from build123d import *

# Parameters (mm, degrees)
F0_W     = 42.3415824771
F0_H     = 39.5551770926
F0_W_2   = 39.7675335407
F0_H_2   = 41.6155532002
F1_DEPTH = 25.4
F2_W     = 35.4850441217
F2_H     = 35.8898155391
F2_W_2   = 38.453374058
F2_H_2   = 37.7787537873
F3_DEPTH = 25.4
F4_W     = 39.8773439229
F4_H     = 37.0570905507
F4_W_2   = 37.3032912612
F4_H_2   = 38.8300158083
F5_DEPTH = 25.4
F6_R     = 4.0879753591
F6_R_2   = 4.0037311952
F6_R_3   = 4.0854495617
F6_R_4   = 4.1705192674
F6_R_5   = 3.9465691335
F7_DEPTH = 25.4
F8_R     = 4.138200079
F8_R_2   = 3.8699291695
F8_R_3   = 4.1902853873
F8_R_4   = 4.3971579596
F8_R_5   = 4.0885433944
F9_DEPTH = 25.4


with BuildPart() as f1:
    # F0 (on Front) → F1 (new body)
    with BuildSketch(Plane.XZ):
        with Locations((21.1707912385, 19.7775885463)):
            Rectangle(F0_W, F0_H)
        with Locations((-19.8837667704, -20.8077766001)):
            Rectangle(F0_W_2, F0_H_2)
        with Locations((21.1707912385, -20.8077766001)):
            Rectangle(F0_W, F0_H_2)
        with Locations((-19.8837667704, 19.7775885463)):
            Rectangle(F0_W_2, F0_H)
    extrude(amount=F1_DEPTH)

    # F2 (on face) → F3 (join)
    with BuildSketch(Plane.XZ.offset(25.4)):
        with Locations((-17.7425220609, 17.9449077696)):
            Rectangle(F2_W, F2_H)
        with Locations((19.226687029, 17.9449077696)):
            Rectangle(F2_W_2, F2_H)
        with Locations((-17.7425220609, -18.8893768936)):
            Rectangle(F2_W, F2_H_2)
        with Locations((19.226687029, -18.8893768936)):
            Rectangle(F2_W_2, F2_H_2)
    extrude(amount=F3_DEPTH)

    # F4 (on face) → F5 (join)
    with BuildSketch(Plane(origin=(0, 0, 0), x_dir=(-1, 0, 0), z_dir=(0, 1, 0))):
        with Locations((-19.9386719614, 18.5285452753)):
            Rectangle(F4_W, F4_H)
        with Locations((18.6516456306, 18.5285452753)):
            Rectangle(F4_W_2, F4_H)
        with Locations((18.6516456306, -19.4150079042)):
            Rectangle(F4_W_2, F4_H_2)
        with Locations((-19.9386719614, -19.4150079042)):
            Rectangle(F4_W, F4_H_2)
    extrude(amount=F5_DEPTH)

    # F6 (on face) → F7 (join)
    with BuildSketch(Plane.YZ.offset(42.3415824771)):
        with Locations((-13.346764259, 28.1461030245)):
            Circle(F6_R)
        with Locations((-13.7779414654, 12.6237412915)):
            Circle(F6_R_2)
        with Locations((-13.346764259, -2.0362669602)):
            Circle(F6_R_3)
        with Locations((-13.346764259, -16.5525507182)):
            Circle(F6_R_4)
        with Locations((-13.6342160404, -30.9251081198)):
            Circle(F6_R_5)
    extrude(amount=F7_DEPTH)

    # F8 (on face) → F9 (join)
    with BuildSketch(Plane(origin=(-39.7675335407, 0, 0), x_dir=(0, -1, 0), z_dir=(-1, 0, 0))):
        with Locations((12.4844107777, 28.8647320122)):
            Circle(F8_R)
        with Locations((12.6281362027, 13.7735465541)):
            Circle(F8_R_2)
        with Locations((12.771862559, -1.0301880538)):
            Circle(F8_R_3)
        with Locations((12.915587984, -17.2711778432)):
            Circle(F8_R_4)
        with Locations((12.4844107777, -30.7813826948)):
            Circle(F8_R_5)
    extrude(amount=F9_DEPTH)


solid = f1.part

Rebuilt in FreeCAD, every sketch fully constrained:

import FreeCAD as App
import Part
import Sketcher
Q = App.Units.Quantity

doc = App.newDocument("Part")
body = doc.addObject("PartDesign::Body", "Body")

sketch1 = body.newObject("Sketcher::SketchObject", "Sketch")
sketch1.AttachmentSupport = (doc.getObject("XZ_Plane"), [""])
sketch1.MapMode = "FlatFace"
sketch1.addGeometry([
    Part.LineSegment(App.Vector(-40, -42, 0), App.Vector(42, -42, 0)),
    Part.LineSegment(App.Vector(42, -42, 0), App.Vector(42, 40, 0)),
    Part.LineSegment(App.Vector(42, 40, 0), App.Vector(-40, 40, 0)),
    Part.LineSegment(App.Vector(-40, 40, 0), App.Vector(-40, -42, 0)),
], False)
sketch1.addConstraint([
    Sketcher.Constraint("Coincident", 0, 2, 1, 1),
    Sketcher.Constraint("Coincident", 1, 2, 2, 1),
    Sketcher.Constraint("Coincident", 2, 2, 3, 1),
    Sketcher.Constraint("Coincident", 3, 2, 0, 1),
    Sketcher.Constraint("Horizontal", 0),
    Sketcher.Constraint("Vertical", 1),
    Sketcher.Constraint("Horizontal", 2),
    Sketcher.Constraint("Vertical", 3),
    Sketcher.Constraint("DistanceY", 1, 1, 1, 2, 81.17073),
    Sketcher.Constraint("DistanceX", 0, 1, 0, 2, 82.109116),
    Sketcher.Constraint("DistanceX", -1, 1, 0, 2, 42.341582),
    Sketcher.Constraint("DistanceY", 0, 2, -1, 1, 41.615553),
])
pad1 = body.newObject("PartDesign::Pad", "Pad")
pad1.Profile = sketch1
pad1.Length = Q("1 in")

sketch2 = body.newObject("Sketcher::SketchObject", "Sketch001")
sketch2.AttachmentSupport = (doc.getObject("XZ_Plane"), [""])
sketch2.MapMode = "FlatFace"
sketch2.AttachmentOffset = App.Placement(App.Vector(0, 0, 1 * 25.4), App.Rotation())
sketch2.addGeometry([
    Part.LineSegment(App.Vector(-35, 36, 0), App.Vector(-35, -38, 0)),
    Part.LineSegment(App.Vector(-35, -38, 0), App.Vector(38, -38, 0)),
    Part.LineSegment(App.Vector(38, -38, 0), App.Vector(38, 36, 0)),
    Part.LineSegment(App.Vector(38, 36, 0), App.Vector(-35, 36, 0)),
], False)
sketch2.addConstraint([
    Sketcher.Constraint("Coincident", 0, 2, 1, 1),
    Sketcher.Constraint("Coincident", 1, 2, 2, 1),
    Sketcher.Constraint("Coincident", 2, 2, 3, 1),
    Sketcher.Constraint("Coincident", 3, 2, 0, 1),
    Sketcher.Constraint("Vertical", 0),
    Sketcher.Constraint("Horizontal", 1),
    Sketcher.Constraint("Vertical", 2),
    Sketcher.Constraint("Horizontal", 3),
    Sketcher.Constraint("DistanceX", 1, 1, 1, 2, 73.938418),
    Sketcher.Constraint("DistanceY", 0, 2, 0, 1, 73.668569),
    Sketcher.Constraint("DistanceX", 0, 2, -1, 1, 35.485044),
    Sketcher.Constraint("DistanceY", 0, 2, -1, 1, 37.778754),
])
pad2 = body.newObject("PartDesign::Pad", "Pad001")
pad2.Profile = sketch2
pad2.Length = Q("1 in")

sketch3 = body.newObject("Sketcher::SketchObject", "Sketch002")
sketch3.AttachmentSupport = (doc.getObject("XZ_Plane"), [""])
sketch3.MapMode = "FlatFace"
sketch3.addGeometry([
    Part.LineSegment(App.Vector(40, 37, 0), App.Vector(40, -39, 0)),
    Part.LineSegment(App.Vector(40, -39, 0), App.Vector(-37, -39, 0)),
    Part.LineSegment(App.Vector(-37, -39, 0), App.Vector(-37, 37, 0)),
    Part.LineSegment(App.Vector(-37, 37, 0), App.Vector(40, 37, 0)),
], False)
sketch3.addConstraint([
    Sketcher.Constraint("Coincident", 0, 2, 1, 1),
    Sketcher.Constraint("Coincident", 1, 2, 2, 1),
    Sketcher.Constraint("Coincident", 2, 2, 3, 1),
    Sketcher.Constraint("Coincident", 3, 2, 0, 1),
    Sketcher.Constraint("Vertical", 0),
    Sketcher.Constraint("Horizontal", 1),
    Sketcher.Constraint("Vertical", 2),
    Sketcher.Constraint("Horizontal", 3),
    Sketcher.Constraint("DistanceX", 1, 2, 1, 1, 77.180635),
    Sketcher.Constraint("DistanceY", 0, 2, 0, 1, 75.887106),
    Sketcher.Constraint("DistanceX", 1, 2, -1, 1, 37.303291),
    Sketcher.Constraint("DistanceY", -1, 1, 2, 2, 37.057091),
])
pad3 = body.newObject("PartDesign::Pad", "Pad002")
pad3.Profile = sketch3
pad3.Length = Q("1 in")
pad3.Reversed = True

sketch4 = body.newObject("Sketcher::SketchObject", "Sketch003")
sketch4.AttachmentSupport = (doc.getObject("YZ_Plane"), [""])
sketch4.MapMode = "FlatFace"
sketch4.AttachmentOffset = App.Placement(App.Vector(0, 0, 42.341582), App.Rotation())
sketch4.addGeometry([
    Part.Circle(App.Vector(-13.3, 28.1, 0), App.Vector(0, 0, 1), 4.1),
    Part.Circle(App.Vector(-13.8, 12.6, 0), App.Vector(0, 0, 1), 4),
    Part.Circle(App.Vector(-13.3, -2, 0), App.Vector(0, 0, 1), 4.1),
    Part.Circle(App.Vector(-13.3, -16.6, 0), App.Vector(0, 0, 1), 4.2),
    Part.Circle(App.Vector(-13.6, -30.9, 0), App.Vector(0, 0, 1), 3.9),
], False)
sketch4.addConstraint([
    Sketcher.Constraint("Vertical", 0, 3, 2, 3),
    Sketcher.Constraint("Vertical", 2, 3, 3, 3),
    Sketcher.Constraint("Diameter", 2, 8.170899),
    Sketcher.Constraint("Diameter", 0, 8.175951),
    Sketcher.Constraint("Diameter", 3, 8.341039),
    Sketcher.Constraint("Diameter", 4, 7.893138),
    Sketcher.Constraint("Diameter", 1, 8.007462),
    Sketcher.Constraint("DistanceX", 1, 3, -1, 1, 13.777941),
    Sketcher.Constraint("DistanceY", -1, 1, 1, 3, 12.623741),
    Sketcher.Constraint("DistanceY", 3, 3, -1, 1, 16.552551),
    Sketcher.Constraint("DistanceY", 4, 3, -1, 1, 30.925108),
    Sketcher.Constraint("DistanceY", 1, 3, 0, 3, 15.522362),
    Sketcher.Constraint("DistanceY", 2, 3, 1, 3, 14.660008),
    Sketcher.Constraint("DistanceX", 4, 3, 3, 3, 0.287452),
    Sketcher.Constraint("DistanceX", 0, 3, -1, 1, 13.346764),
])
pad4 = body.newObject("PartDesign::Pad", "Pad003")
pad4.Profile = sketch4
pad4.Length = Q("1 in")

sketch5 = body.newObject("Sketcher::SketchObject", "Sketch004")
sketch5.AttachmentSupport = (doc.getObject("YZ_Plane"), [""])
sketch5.MapMode = "FlatFace"
sketch5.AttachmentOffset = App.Placement(App.Vector(0, 0, -39.767534), App.Rotation())
sketch5.addGeometry([
    Part.Circle(App.Vector(-12.5, 28.9, 0), App.Vector(0, 0, 1), 4.1),
    Part.Circle(App.Vector(-12.6, 13.8, 0), App.Vector(0, 0, 1), 3.9),
    Part.Circle(App.Vector(-12.8, -1, 0), App.Vector(0, 0, 1), 4.2),
    Part.Circle(App.Vector(-12.9, -17.3, 0), App.Vector(0, 0, 1), 4.4),
    Part.Circle(App.Vector(-12.5, -30.8, 0), App.Vector(0, 0, 1), 4.1),
], False)
sketch5.addConstraint([
    Sketcher.Constraint("Vertical", 0, 3, 4, 3),
    Sketcher.Constraint("Diameter", 0, 8.2764),
    Sketcher.Constraint("Diameter", 1, 7.739858),
    Sketcher.Constraint("Diameter", 2, 8.380571),
    Sketcher.Constraint("Diameter", 3, 8.794316),
    Sketcher.Constraint("Diameter", 4, 8.177087),
    Sketcher.Constraint("DistanceX", 0, 3, -1, 1, 12.484411),
    Sketcher.Constraint("DistanceY", 2, 3, -1, 1, 1.030188),
    Sketcher.Constraint("DistanceX", 2, 3, 0, 3, 0.287452),
    Sketcher.Constraint("DistanceY", 2, 3, 0, 3, 29.89492),
    Sketcher.Constraint("DistanceY", 3, 3, 2, 3, 16.24099),
    Sketcher.Constraint("DistanceX", 3, 3, 1, 3, 0.287452),
    Sketcher.Constraint("DistanceY", 4, 3, 1, 3, 44.554929),
    Sketcher.Constraint("DistanceX", 1, 3, -1, 1, 12.628136),
    Sketcher.Constraint("DistanceY", -1, 1, 1, 3, 13.773547),
])
pad5 = body.newObject("PartDesign::Pad", "Pad004")
pad5.Profile = sketch5
pad5.Length = Q("1 in")
pad5.Reversed = True

doc.recompute()
